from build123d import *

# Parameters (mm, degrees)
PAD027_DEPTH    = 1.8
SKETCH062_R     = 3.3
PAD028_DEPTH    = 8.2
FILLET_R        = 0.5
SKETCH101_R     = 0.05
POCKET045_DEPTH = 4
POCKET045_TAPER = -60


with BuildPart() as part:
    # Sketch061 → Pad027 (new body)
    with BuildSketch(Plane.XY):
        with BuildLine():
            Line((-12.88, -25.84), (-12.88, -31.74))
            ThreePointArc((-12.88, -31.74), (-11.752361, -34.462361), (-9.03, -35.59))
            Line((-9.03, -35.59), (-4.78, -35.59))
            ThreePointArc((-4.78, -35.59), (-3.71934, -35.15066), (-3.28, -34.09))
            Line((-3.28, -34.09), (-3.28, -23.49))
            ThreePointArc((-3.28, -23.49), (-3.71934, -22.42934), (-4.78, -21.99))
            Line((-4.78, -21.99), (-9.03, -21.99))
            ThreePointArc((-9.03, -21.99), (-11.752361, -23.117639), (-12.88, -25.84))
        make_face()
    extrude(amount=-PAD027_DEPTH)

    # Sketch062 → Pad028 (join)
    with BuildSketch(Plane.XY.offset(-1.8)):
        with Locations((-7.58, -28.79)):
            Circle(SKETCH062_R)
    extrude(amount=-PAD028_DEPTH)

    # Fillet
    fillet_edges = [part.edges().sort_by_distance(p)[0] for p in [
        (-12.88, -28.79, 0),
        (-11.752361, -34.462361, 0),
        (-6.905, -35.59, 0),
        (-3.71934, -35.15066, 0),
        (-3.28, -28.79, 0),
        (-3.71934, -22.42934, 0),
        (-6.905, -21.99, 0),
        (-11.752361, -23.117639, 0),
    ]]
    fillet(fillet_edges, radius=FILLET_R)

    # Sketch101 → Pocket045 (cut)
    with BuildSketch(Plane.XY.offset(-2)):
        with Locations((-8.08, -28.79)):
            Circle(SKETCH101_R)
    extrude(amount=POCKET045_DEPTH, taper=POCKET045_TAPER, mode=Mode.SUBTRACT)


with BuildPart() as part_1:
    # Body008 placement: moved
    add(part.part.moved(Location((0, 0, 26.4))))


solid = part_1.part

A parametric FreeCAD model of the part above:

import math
import FreeCAD as App
import Part
import Sketcher
Q = App.Units.Quantity


def edges_at(feature, points):
    """Names of the edges that pass closest to the given points."""
    edges = feature.Shape.Edges
    near = lambda p: min(range(len(edges)), key=lambda i: edges[i].distToShape(Part.Vertex(*p))[0])
    return sorted({f"Edge{near(p) + 1}" for p in points})

doc = App.newDocument("Part")
body = doc.addObject("PartDesign::Body", "Body")

# Sketch on XY plane
sketch1 = doc.addObject("Sketcher::SketchObject", "Sketch")
body.addObject(sketch1)
sketch1.AttachmentSupport = (doc.XY_Plane, [""])
sketch1.MapMode = "FlatFace"
sketch1.addGeometry([
    Part.LineSegment(App.Vector(-12.9, -25.8, 0), App.Vector(-12.9, -31.7, 0)),  # 0
    Part.ArcOfCircle(Part.Circle(App.Vector(-9, -31.7, 0), App.Vector(0, 0, 1), 3.9), math.radians(-180), math.radians(-90)),  # 1
    Part.LineSegment(App.Vector(-9, -35.6, 0), App.Vector(-4.8, -35.6, 0)),  # 2
    Part.ArcOfCircle(Part.Circle(App.Vector(-4.8, -34.1, 0), App.Vector(0, 0, 1), 1.5), math.radians(-90), math.radians(0)),  # 3
    Part.LineSegment(App.Vector(-3.3, -34.1, 0), App.Vector(-3.3, -23.5, 0)),  # 4
    Part.ArcOfCircle(Part.Circle(App.Vector(-4.8, -23.5, 0), App.Vector(0, 0, 1), 1.5), math.radians(0), math.radians(90)),  # 5
    Part.LineSegment(App.Vector(-4.8, -22, 0), App.Vector(-9, -22, 0)),  # 6
    Part.ArcOfCircle(Part.Circle(App.Vector(-9, -25.8, 0), App.Vector(0, 0, 1), 3.9), math.radians(90), math.radians(180)),  # 7
], False)
sketch1.addConstraint([
    Sketcher.Constraint("Tangent", 0, 2, 1, 1),
    Sketcher.Constraint("Tangent", 1, 2, 2, 1),
    Sketcher.Constraint("Tangent", 2, 2, 3, 1),
    Sketcher.Constraint("Tangent", 3, 2, 4, 1),
    Sketcher.Constraint("Tangent", 4, 2, 5, 1),
    Sketcher.Constraint("Tangent", 5, 2, 6, 1),
    Sketcher.Constraint("Tangent", 6, 2, 7, 1),
    Sketcher.Constraint("Tangent", 7, 2, 0, 1),
    Sketcher.Constraint("Vertical", 0),
    Sketcher.Constraint("Horizontal", 2),
    Sketcher.Constraint("Vertical", 4),
    Sketcher.Constraint("Horizontal", 6),
    Sketcher.Constraint("Equal", 3, 5),
    Sketcher.Constraint("Equal", 1, 7),
    Sketcher.Constraint("Radius", 3, Q("1.500001 mm")),
    Sketcher.Constraint("Radius", 1, Q("3.85 mm")),
    Sketcher.Constraint("DistanceY", 0, 2, 0, 1, Q("5.9 mm")),
    Sketcher.Constraint("DistanceX", 2, 1, 2, 2, Q("4.25 mm")),
    Sketcher.Constraint("DistanceX", 1, 3, -1, 1, Q("9.03 mm")),
    Sketcher.Constraint("DistanceY", 1, 3, -1, 1, Q("31.74 mm")),
])
pad1 = doc.addObject("PartDesign::Pad", "Pad")
body.addObject(pad1)
pad1.Profile = sketch1
pad1.Length = 1.8
pad1.Reversed = True

# Sketch on XY plane
sketch2 = doc.addObject("Sketcher::SketchObject", "Sketch001")
body.addObject(sketch2)
sketch2.AttachmentSupport = (doc.XY_Plane, [""])
sketch2.MapMode = "FlatFace"
sketch2.AttachmentOffset = App.Placement(App.Vector(0, 0, -1.8), App.Rotation())
sketch2.addGeometry(Part.Circle(App.Vector(-7.6, -28.8, 0), App.Vector(0, 0, 1), 3.3), False)
sketch2.addConstraint([
    Sketcher.Constraint("Diameter", 0, Q("6.6 mm")),
    Sketcher.Constraint("DistanceX", 0, 3, -1, 1, Q("7.58 mm")),
    Sketcher.Constraint("DistanceY", 0, 3, -1, 1, Q("28.79 mm")),
])
pad2 = doc.addObject("PartDesign::Pad", "Pad001")
body.addObject(pad2)
pad2.Profile = sketch2
pad2.Length = 8.2
pad2.Reversed = True
doc.recompute()

fillet = doc.addObject("PartDesign::Fillet", "Fillet")
body.addObject(fillet)
fillet.Base = (pad2, edges_at(pad2, [
    (-12.88, -28.79, 0),
    (-11.752, -34.462, 0),
    (-6.905, -35.59, 0),
    (-3.719, -35.151, 0),
    (-3.28, -28.79, 0),
    (-3.719, -22.429, 0),
    (-6.905, -21.99, 0),
    (-11.752, -23.118, 0),
]))
fillet.Radius = 0.5

# Sketch on XY plane
sketch3 = doc.addObject("Sketcher::SketchObject", "Sketch002")
body.addObject(sketch3)
sketch3.AttachmentSupport = (doc.XY_Plane, [""])
sketch3.MapMode = "FlatFace"
sketch3.AttachmentOffset = App.Placement(App.Vector(0, 0, -2), App.Rotation())
sketch3.addGeometry(Part.Circle(App.Vector(-8.08, -28.79, 0), App.Vector(0, 0, 1), 0.05), False)
sketch3.addConstraint([
    Sketcher.Constraint("Diameter", 0, Q("0.1 mm")),
    Sketcher.Constraint("DistanceX", 0, 3, -1, 1, Q("8.08 mm")),
    Sketcher.Constraint("DistanceY", 0, 3, -1, 1, Q("28.79 mm")),
])
pocket1 = doc.addObject("PartDesign::Pocket", "Pocket")
body.addObject(pocket1)
pocket1.Profile = sketch3
pocket1.Length = 4
pocket1.Reversed = True
pocket1.TaperAngle = 60
body2 = doc.addObject("PartDesign::Body", "Body001")
doc.recompute()

body.Placement = App.Placement(App.Vector(0, 0, 26.4), App.Rotation(App.Vector(0, 0, 1), 0))
boolean = doc.addObject("PartDesign::Boolean", "Boolean")
body2.addObject(boolean)
boolean.Type = "Fuse"
boolean.addObjects([body])

doc.recompute()
